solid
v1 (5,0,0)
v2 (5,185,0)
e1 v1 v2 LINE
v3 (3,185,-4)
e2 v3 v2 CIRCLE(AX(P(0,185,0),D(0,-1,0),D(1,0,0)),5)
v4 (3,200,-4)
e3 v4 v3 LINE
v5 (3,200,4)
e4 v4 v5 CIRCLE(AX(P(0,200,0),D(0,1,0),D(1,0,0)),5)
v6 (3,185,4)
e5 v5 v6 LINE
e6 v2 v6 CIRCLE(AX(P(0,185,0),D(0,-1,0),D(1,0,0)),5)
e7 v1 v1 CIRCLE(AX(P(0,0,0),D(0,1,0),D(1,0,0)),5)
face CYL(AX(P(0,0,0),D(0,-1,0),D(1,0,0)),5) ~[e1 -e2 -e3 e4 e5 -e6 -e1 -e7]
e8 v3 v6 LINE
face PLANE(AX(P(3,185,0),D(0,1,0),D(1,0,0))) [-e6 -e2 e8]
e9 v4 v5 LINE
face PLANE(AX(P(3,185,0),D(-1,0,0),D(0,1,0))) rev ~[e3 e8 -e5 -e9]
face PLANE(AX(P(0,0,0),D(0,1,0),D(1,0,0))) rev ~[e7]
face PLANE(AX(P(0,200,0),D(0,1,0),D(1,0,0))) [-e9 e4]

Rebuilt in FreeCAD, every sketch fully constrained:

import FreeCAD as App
import Part
import Sketcher
Q = App.Units.Quantity

doc = App.newDocument("Part")
params = doc.addObject("Spreadsheet::Sheet", "Params")
for row, (alias, value) in enumerate([
    ("sketch1_diameter", "10 mm"),
    ("pad1_length", "200 mm"),
    ("sketch2_width", "2 mm"),
], start=1):
    params.set(f"A{row}", alias)
    params.set(f"B{row}", "=" + value)
    params.setAlias(f"B{row}", alias)

body = doc.addObject("PartDesign::Body", "Body")

sketch1 = doc.addObject("Sketcher::SketchObject", "Sketch")
body.addObject(sketch1)
sketch1.AttachmentSupport = (doc.XZ_Plane, [""])
sketch1.MapMode = "FlatFace"
sketch1.addGeometry(Part.Circle(App.Vector(0, 0, 0), App.Vector(0, 0, 1), 5), False)
sketch1.addConstraint(Sketcher.Constraint("Coincident", 0, 3, -1, 1))
sketch1.addConstraint(Sketcher.Constraint("Diameter", 0, Q("10 mm")))
sketch1.setExpression("Constraints[1]", "Params.sketch1_diameter")
pad1 = doc.addObject("PartDesign::Pad", "Pad")
body.addObject(pad1)
pad1.Profile = sketch1
pad1.setExpression("Length", "Params.pad1_length")
pad1.Reversed = True

sketch2 = doc.addObject("Sketcher::SketchObject", "Sketch001")
body.addObject(sketch2)
sketch2.AttachmentSupport = (doc.XY_Plane, [""])
sketch2.MapMode = "FlatFace"
sketch2.addGeometry(Part.LineSegment(App.Vector(3, 201.134959, 0), App.Vector(3, 185, 0)), False)
sketch2.addGeometry(Part.LineSegment(App.Vector(3, 185, 0), App.Vector(5, 185, 0)), False)
sketch2.addGeometry(Part.LineSegment(App.Vector(5, 185, 0), App.Vector(5, 201.134959, 0)), False)
sketch2.addGeometry(Part.LineSegment(App.Vector(5, 201.134959, 0), App.Vector(3, 201.134959, 0)), False)
sketch2.addConstraint(Sketcher.Constraint("Coincident", 0, 2, 1, 1))
sketch2.addConstraint(Sketcher.Constraint("Coincident", 1, 2, 2, 1))
sketch2.addConstraint(Sketcher.Constraint("Coincident", 2, 2, 3, 1))
sketch2.addConstraint(Sketcher.Constraint("Coincident", 3, 2, 0, 1))
sketch2.addConstraint(Sketcher.Constraint("Vertical", 0))
sketch2.addConstraint(Sketcher.Constraint("Horizontal", 1))
sketch2.addConstraint(Sketcher.Constraint("Vertical", 2))
sketch2.addConstraint(Sketcher.Constraint("Horizontal", 3))
sketch2.addConstraint(Sketcher.Constraint("DistanceX", 1, 1, 1, 2, Q("2 mm")))
sketch2.addConstraint(Sketcher.Constraint("DistanceX", -1, 1, 0, 2, Q("3 mm")))
sketch2.addConstraint(Sketcher.Constraint("DistanceY", -1, 1, 0, 2, Q("185 mm")))
sketch2.addConstraint(Sketcher.Constraint("DistanceY", 0, 2, 0, 1, Q("16.134959 mm")))
sketch2.setExpression("Constraints[8]", "Params.sketch2_width")
pocket1 = doc.addObject("PartDesign::Pocket", "Pocket")
body.addObject(pocket1)
pocket1.Profile = sketch2
pocket1.Type = "ThroughAll"
pocket1.Midplane = True

doc.recompute()
